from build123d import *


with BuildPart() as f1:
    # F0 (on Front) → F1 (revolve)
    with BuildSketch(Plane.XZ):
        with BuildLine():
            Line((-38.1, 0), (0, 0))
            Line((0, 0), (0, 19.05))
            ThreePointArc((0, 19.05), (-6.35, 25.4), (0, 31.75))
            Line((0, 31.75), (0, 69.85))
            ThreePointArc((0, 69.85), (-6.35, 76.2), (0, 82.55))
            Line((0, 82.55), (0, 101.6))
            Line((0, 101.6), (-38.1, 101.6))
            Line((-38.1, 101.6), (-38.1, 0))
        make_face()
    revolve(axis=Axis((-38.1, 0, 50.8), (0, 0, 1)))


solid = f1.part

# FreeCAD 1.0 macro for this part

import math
import FreeCAD as App
import Part
import Sketcher
from FreeCAD import Vector
Q = App.Units.Quantity

doc = App.newDocument("Part")
body = doc.addObject("PartDesign::Body", "Body")

# Sketch on XZ plane
sketch1 = body.newObject("Sketcher::SketchObject", "Sketch")
sketch1.AttachmentSupport = (doc.getObject("XZ_Plane"), [""])
sketch1.MapMode = "FlatFace"
sketch1.addGeometry(Part.LineSegment(Vector(-38.1, 0, 0), Vector(0, 0, 0)), False)
sketch1.addGeometry(Part.LineSegment(Vector(0, 0, 0), Vector(0, 19.05, 0)), False)
sketch1.addGeometry(Part.ArcOfCircle(Part.Circle(Vector(0, 25.4, 0), Vector(0, 0, 1), 6.35), math.radians(90), math.radians(270)), False)
sketch1.addGeometry(Part.LineSegment(Vector(0, 31.75, 0), Vector(0, 69.85, 0)), False)
sketch1.addGeometry(Part.ArcOfCircle(Part.Circle(Vector(0, 76.2, 0), Vector(0, 0, 1), 6.35), math.radians(90), math.radians(270)), False)
sketch1.addGeometry(Part.LineSegment(Vector(0, 82.55, 0), Vector(0, 101.6, 0)), False)
sketch1.addGeometry(Part.LineSegment(Vector(0, 101.6, 0), Vector(-38.1, 101.6, 0)), False)
sketch1.addGeometry(Part.LineSegment(Vector(-38.1, 101.6, 0), Vector(-38.1, 0, 0)), False)
sketch1.addGeometry(Part.LineSegment(Vector(-38.1, 0, 0), Vector(-38.1, 101.6, 0)), True)  # axis
sketch1.addConstraint(Sketcher.Constraint("Coincident", 0, 2, 1, 1))
sketch1.addConstraint(Sketcher.Constraint("Coincident", 1, 2, 2, 2))
sketch1.addConstraint(Sketcher.Constraint("Coincident", 2, 1, 3, 1))
sketch1.addConstraint(Sketcher.Constraint("Coincident", 3, 2, 4, 2))
sketch1.addConstraint(Sketcher.Constraint("Coincident", 4, 1, 5, 1))
sketch1.addConstraint(Sketcher.Constraint("Coincident", 5, 2, 6, 1))
sketch1.addConstraint(Sketcher.Constraint("Coincident", 6, 2, 7, 1))
sketch1.addConstraint(Sketcher.Constraint("Coincident", 7, 2, 0, 1))
sketch1.addConstraint(Sketcher.Constraint("Horizontal", 0))
sketch1.addConstraint(Sketcher.Constraint("Vertical", 1))
sketch1.addConstraint(Sketcher.Constraint("Vertical", 3))
sketch1.addConstraint(Sketcher.Constraint("Vertical", 5))
sketch1.addConstraint(Sketcher.Constraint("Horizontal", 6))
sketch1.addConstraint(Sketcher.Constraint("Vertical", 7))
sketch1.addConstraint(Sketcher.Constraint("Vertical", 8))
sketch1.addConstraint(Sketcher.Constraint("Coincident", 0, 2, -1, 1))
sketch1.addConstraint(Sketcher.Constraint("Coincident", 8, 1, 7, 2))
sketch1.addConstraint(Sketcher.Constraint("Equal", 2, 4))
sketch1.addConstraint(Sketcher.Constraint("PointOnObject", 2, 3, -2))
sketch1.addConstraint(Sketcher.Constraint("PointOnObject", 4, 3, -2))
sketch1.addConstraint(Sketcher.Constraint("PointOnObject", 2, 1, -2))
sketch1.addConstraint(Sketcher.Constraint("PointOnObject", 4, 1, -2))
sketch1.addConstraint(Sketcher.Constraint("Horizontal", 5, 2, 8, 2))
sketch1.addConstraint(Sketcher.Constraint("Equal", 6, 3))
sketch1.addConstraint(Sketcher.Constraint("Equal", 1, 5))
sketch1.addConstraint(Sketcher.Constraint("DistanceY", 7, 2, 7, 1, Q("4 in")))
sketch1.addConstraint(Sketcher.Constraint("Radius", 2, Q("0.25 in")))
sketch1.addConstraint(Sketcher.Constraint("DistanceX", 0, 1, 0, 2, Q("1.5 in")))
revolution = body.newObject("PartDesign::Revolution", "Revolution")
revolution.Profile = sketch1
revolution.ReferenceAxis = (sketch1, ["Axis0"])
revolution.Angle = 360

doc.recompute()
